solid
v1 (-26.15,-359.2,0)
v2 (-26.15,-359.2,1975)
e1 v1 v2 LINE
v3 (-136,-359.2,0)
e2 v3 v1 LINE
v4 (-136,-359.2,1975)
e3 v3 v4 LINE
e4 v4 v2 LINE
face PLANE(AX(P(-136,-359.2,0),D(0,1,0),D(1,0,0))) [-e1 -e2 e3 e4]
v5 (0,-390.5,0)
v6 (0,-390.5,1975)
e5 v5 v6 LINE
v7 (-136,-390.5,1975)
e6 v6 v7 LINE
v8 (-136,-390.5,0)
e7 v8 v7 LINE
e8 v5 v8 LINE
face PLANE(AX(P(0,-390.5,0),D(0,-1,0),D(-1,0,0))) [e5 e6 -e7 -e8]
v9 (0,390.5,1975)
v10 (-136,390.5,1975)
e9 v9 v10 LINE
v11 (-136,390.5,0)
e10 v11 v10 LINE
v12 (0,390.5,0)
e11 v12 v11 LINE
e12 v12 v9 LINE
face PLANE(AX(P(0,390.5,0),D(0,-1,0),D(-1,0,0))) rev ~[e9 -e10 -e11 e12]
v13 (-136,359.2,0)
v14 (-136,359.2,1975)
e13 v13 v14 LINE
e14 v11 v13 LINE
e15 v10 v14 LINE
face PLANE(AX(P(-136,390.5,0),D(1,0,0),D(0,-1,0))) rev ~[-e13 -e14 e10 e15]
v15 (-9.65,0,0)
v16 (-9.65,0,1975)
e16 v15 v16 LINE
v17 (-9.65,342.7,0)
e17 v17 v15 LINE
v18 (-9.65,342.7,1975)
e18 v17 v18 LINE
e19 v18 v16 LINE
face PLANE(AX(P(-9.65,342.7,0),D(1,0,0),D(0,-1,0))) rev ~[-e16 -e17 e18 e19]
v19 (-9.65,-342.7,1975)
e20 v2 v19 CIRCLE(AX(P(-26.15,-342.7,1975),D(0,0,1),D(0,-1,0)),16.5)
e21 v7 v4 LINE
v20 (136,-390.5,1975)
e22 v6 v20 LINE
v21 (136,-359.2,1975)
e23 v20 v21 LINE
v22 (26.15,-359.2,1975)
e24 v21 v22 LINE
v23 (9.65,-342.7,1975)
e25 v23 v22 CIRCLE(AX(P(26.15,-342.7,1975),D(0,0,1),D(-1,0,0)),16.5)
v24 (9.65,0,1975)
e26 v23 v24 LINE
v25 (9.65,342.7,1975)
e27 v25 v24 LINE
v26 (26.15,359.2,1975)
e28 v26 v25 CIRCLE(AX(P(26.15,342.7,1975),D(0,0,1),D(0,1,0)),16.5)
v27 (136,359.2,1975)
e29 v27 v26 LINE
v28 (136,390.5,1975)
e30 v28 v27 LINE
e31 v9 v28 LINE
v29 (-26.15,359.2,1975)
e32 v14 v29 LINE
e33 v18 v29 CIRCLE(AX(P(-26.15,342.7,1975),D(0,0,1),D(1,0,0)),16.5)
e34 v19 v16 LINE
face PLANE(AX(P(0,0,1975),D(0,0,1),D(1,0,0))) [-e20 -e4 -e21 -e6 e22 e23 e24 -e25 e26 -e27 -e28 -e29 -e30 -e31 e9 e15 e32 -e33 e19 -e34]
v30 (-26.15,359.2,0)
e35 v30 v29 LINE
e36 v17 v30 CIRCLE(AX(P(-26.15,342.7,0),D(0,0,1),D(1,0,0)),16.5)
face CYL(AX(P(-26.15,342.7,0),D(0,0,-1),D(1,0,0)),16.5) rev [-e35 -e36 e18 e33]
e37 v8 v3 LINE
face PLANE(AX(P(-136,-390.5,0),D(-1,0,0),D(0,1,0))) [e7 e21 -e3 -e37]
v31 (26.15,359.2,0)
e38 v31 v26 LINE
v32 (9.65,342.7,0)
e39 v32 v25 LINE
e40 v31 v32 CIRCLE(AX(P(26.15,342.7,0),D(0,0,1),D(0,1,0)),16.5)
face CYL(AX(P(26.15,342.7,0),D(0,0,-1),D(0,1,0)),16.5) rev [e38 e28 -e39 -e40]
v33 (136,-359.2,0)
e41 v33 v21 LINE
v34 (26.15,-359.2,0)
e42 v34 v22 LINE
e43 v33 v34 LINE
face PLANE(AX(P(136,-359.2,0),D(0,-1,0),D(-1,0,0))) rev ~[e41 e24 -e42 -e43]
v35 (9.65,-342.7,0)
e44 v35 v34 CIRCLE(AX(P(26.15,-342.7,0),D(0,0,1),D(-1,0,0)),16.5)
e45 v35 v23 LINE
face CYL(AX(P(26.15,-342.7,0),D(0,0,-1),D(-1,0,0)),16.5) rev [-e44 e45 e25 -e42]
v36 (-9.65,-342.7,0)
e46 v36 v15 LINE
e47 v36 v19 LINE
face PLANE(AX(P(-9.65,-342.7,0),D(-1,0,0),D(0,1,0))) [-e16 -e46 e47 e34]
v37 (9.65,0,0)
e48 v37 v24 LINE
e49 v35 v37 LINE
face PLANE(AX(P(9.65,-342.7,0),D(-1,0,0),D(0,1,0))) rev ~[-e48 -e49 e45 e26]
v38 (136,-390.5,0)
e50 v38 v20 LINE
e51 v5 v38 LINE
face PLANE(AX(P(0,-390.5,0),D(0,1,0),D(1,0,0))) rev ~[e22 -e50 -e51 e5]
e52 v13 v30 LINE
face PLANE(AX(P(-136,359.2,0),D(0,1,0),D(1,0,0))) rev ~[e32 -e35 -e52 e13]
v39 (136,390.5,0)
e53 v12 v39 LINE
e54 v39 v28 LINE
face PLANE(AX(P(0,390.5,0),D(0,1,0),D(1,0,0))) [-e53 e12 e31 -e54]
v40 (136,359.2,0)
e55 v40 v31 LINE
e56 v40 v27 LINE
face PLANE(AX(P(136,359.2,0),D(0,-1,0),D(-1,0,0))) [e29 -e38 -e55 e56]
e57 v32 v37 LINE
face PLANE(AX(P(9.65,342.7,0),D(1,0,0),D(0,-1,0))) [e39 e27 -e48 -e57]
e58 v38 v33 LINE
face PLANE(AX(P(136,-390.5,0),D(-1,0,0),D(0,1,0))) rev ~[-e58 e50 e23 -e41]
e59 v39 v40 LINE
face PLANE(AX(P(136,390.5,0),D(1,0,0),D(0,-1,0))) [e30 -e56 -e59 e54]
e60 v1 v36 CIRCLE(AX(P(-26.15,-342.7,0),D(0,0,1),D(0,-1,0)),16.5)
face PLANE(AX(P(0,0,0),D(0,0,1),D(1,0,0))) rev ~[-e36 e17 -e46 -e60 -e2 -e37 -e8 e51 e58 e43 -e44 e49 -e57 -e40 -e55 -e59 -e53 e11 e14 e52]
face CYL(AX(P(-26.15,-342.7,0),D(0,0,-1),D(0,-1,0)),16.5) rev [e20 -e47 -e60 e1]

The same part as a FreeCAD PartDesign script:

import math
import FreeCAD as App
import Part
import Sketcher
Q = App.Units.Quantity

doc = App.newDocument("Part")
body = doc.addObject("PartDesign::Body", "Body")

# Sketch on XY plane
sketch1 = body.newObject("Sketcher::SketchObject", "Sketch")
sketch1.AttachmentSupport = (doc.getObject("XY_Plane"), [""])
sketch1.MapMode = "FlatFace"
sketch1.addGeometry(Part.LineSegment(App.Vector(-136, -359.2, 0), App.Vector(-136, -390.5, 0)), False)
sketch1.addGeometry(Part.LineSegment(App.Vector(-136, -390.5, 0), App.Vector(136, -390.5, 0)), False)
sketch1.addGeometry(Part.LineSegment(App.Vector(136, -390.5, 0), App.Vector(136, -359.2, 0)), False)
sketch1.addGeometry(Part.LineSegment(App.Vector(136, -359.2, 0), App.Vector(26.15, -359.2, 0)), False)
sketch1.addGeometry(Part.ArcOfCircle(Part.Circle(App.Vector(26.15, -342.7, 0), App.Vector(0, 0, 1), 16.5), math.radians(180), math.radians(270)), False)
sketch1.addGeometry(Part.LineSegment(App.Vector(9.65, -342.7, 0), App.Vector(9.65, 342.7, 0)), False)
sketch1.addGeometry(Part.ArcOfCircle(Part.Circle(App.Vector(26.15, 342.7, 0), App.Vector(0, 0, 1), 16.5), math.radians(90), math.radians(180)), False)
sketch1.addGeometry(Part.LineSegment(App.Vector(26.15, 359.2, 0), App.Vector(136, 359.2, 0)), False)
sketch1.addGeometry(Part.LineSegment(App.Vector(136, 359.2, 0), App.Vector(136, 390.5, 0)), False)
sketch1.addGeometry(Part.LineSegment(App.Vector(136, 390.5, 0), App.Vector(-136, 390.5, 0)), False)
sketch1.addGeometry(Part.LineSegment(App.Vector(-136, 390.5, 0), App.Vector(-136, 359.2, 0)), False)
sketch1.addGeometry(Part.LineSegment(App.Vector(-136, 359.2, 0), App.Vector(-26.15, 359.2, 0)), False)
sketch1.addGeometry(Part.ArcOfCircle(Part.Circle(App.Vector(-26.15, 342.7, 0), App.Vector(0, 0, 1), 16.5), math.radians(0), math.radians(90)), False)
sketch1.addGeometry(Part.LineSegment(App.Vector(-9.65, 342.7, 0), App.Vector(-9.65, -342.7, 0)), False)
sketch1.addGeometry(Part.ArcOfCircle(Part.Circle(App.Vector(-26.15, -342.7, 0), App.Vector(0, 0, 1), 16.5), math.radians(-90), math.radians(0)), False)
sketch1.addGeometry(Part.LineSegment(App.Vector(-26.15, -359.2, 0), App.Vector(-136, -359.2, 0)), False)
sketch1.addConstraint(Sketcher.Constraint("Coincident", 0, 2, 1, 1))
sketch1.addConstraint(Sketcher.Constraint("Coincident", 1, 2, 2, 1))
sketch1.addConstraint(Sketcher.Constraint("Coincident", 2, 2, 3, 1))
sketch1.addConstraint(Sketcher.Constraint("Tangent", 3, 2, 4, 2))
sketch1.addConstraint(Sketcher.Constraint("Tangent", 4, 1, 5, 1))
sketch1.addConstraint(Sketcher.Constraint("Tangent", 5, 2, 6, 2))
sketch1.addConstraint(Sketcher.Constraint("Tangent", 6, 1, 7, 1))
sketch1.addConstraint(Sketcher.Constraint("Coincident", 7, 2, 8, 1))
sketch1.addConstraint(Sketcher.Constraint("Coincident", 8, 2, 9, 1))
sketch1.addConstraint(Sketcher.Constraint("Coincident", 9, 2, 10, 1))
sketch1.addConstraint(Sketcher.Constraint("Coincident", 10, 2, 11, 1))
sketch1.addConstraint(Sketcher.Constraint("Tangent", 11, 2, 12, 2))
sketch1.addConstraint(Sketcher.Constraint("Tangent", 12, 1, 13, 1))
sketch1.addConstraint(Sketcher.Constraint("Tangent", 13, 2, 14, 2))
sketch1.addConstraint(Sketcher.Constraint("Tangent", 14, 1, 15, 1))
sketch1.addConstraint(Sketcher.Constraint("Coincident", 15, 2, 0, 1))
sketch1.addConstraint(Sketcher.Constraint("Vertical", 0))
sketch1.addConstraint(Sketcher.Constraint("Horizontal", 1))
sketch1.addConstraint(Sketcher.Constraint("Vertical", 2))
sketch1.addConstraint(Sketcher.Constraint("Horizontal", 3))
sketch1.addConstraint(Sketcher.Constraint("Vertical", 5))
sketch1.addConstraint(Sketcher.Constraint("Horizontal", 7))
sketch1.addConstraint(Sketcher.Constraint("Vertical", 8))
sketch1.addConstraint(Sketcher.Constraint("Horizontal", 9))
sketch1.addConstraint(Sketcher.Constraint("Vertical", 10))
sketch1.addConstraint(Sketcher.Constraint("Horizontal", 11))
sketch1.addConstraint(Sketcher.Constraint("Vertical", 13))
sketch1.addConstraint(Sketcher.Constraint("Horizontal", 15))
sketch1.addConstraint(Sketcher.Constraint("Equal", 4, 6))
sketch1.addConstraint(Sketcher.Constraint("Equal", 6, 12))
sketch1.addConstraint(Sketcher.Constraint("Equal", 12, 14))
sketch1.addConstraint(Sketcher.Constraint("Symmetric", 4, 3, 12, 3, -1, 1))
sketch1.addConstraint(Sketcher.Constraint("Symmetric", 0, 2, 8, 2, -1, 1))
sketch1.addConstraint(Sketcher.Constraint("Symmetric", 7, 2, 10, 2, -2))
sketch1.addConstraint(Sketcher.Constraint("Symmetric", 2, 2, 15, 2, -2))
sketch1.addConstraint(Sketcher.Constraint("Radius", 4, Q("16.5 mm")))
sketch1.addConstraint(Sketcher.Constraint("DistanceY", 0, 2, 0, 1, Q("31.3 mm")))
sketch1.addConstraint(Sketcher.Constraint("DistanceX", 0, 2, -1, 1, Q("136 mm")))
sketch1.addConstraint(Sketcher.Constraint("DistanceY", 0, 2, -1, 1, Q("390.5 mm")))
sketch1.addConstraint(Sketcher.Constraint("DistanceX", -1, 1, 4, 1, Q("9.65 mm")))
pad1 = body.newObject("PartDesign::Pad", "Pad")
pad1.Profile = sketch1
pad1.Length = 1975

doc.recompute()
